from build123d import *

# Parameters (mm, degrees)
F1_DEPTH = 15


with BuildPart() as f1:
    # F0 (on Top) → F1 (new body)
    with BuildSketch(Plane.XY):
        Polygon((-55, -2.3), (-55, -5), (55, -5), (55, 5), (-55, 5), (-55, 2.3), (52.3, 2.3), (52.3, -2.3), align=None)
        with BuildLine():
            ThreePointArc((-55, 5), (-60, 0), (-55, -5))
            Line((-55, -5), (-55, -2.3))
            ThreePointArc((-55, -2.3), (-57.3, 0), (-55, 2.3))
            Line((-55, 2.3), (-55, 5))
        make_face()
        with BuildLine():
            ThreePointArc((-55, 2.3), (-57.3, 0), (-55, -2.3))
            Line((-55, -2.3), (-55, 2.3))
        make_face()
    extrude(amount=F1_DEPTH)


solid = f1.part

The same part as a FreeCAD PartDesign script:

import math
import FreeCAD as App
import Part
import Sketcher


def add_polygon(sketch, points):
    """Adds a closed chain of lines whose ends are joined by coincident constraints."""
    first, n = sketch.GeometryCount, len(points)
    for a, b in zip(points, points[1:] + points[:1]):
        sketch.addGeometry(Part.LineSegment(App.Vector(*a, 0), App.Vector(*b, 0)), False)
    for i in range(n):
        sketch.addConstraint(Sketcher.Constraint("Coincident", first + i, 2, first + (i + 1) % n, 1))

doc = App.newDocument("Part")
body = doc.addObject("PartDesign::Body", "Body")

sketch1 = body.newObject("Sketcher::SketchObject", "Sketch")
sketch1.AttachmentSupport = (doc.getObject("XY_Plane"), [""])
sketch1.MapMode = "FlatFace"
sketch1.addGeometry(Part.LineSegment(App.Vector(-55, -5, 0), App.Vector(55, -5, 0)), False)
sketch1.addGeometry(Part.LineSegment(App.Vector(55, -5, 0), App.Vector(55, 5, 0)), False)
sketch1.addGeometry(Part.LineSegment(App.Vector(55, 5, 0), App.Vector(-55, 5, 0)), False)
sketch1.addGeometry(Part.ArcOfCircle(Part.Circle(App.Vector(-55, 0, 0), App.Vector(0, 0, 1), 5), math.radians(90), math.radians(270)), False)
add_polygon(sketch1, [(-55, 2.3), (52.3, 2.3), (52.3, -2.3), (-55, -2.3)])
sketch1.addConstraint([
    Sketcher.Constraint("Coincident", 0, 2, 1, 1),
    Sketcher.Constraint("Coincident", 1, 2, 2, 1),
    Sketcher.Constraint("Tangent", 2, 2, 3, 1),
    Sketcher.Constraint("Tangent", 3, 2, 0, 1),
    Sketcher.Constraint("Horizontal", 0),
    Sketcher.Constraint("Vertical", 1),
    Sketcher.Constraint("Horizontal", 2),
    Sketcher.Constraint("Horizontal", 4),
    Sketcher.Constraint("Vertical", 5),
    Sketcher.Constraint("Horizontal", 6),
    Sketcher.Constraint("Vertical", 7),
    Sketcher.Constraint("Symmetric", 0, 2, 2, 2, -1, 1),
    Sketcher.Constraint("Vertical", 3, 2, 6, 2),
    Sketcher.Constraint("Radius", 3, 5.0),
    Sketcher.Constraint("DistanceX", 0, 1, 0, 2, 110.0),
    Sketcher.Constraint("DistanceX", 4, 1, 4, 2, 107.3),
    Sketcher.Constraint("DistanceY", 5, 2, 5, 1, 4.6),
    Sketcher.Constraint("DistanceY", -1, 1, 4, 2, 2.3),
])
pad1 = body.newObject("PartDesign::Pad", "Pad")
pad1.Profile = sketch1
pad1.Length = 15

doc.recompute()
